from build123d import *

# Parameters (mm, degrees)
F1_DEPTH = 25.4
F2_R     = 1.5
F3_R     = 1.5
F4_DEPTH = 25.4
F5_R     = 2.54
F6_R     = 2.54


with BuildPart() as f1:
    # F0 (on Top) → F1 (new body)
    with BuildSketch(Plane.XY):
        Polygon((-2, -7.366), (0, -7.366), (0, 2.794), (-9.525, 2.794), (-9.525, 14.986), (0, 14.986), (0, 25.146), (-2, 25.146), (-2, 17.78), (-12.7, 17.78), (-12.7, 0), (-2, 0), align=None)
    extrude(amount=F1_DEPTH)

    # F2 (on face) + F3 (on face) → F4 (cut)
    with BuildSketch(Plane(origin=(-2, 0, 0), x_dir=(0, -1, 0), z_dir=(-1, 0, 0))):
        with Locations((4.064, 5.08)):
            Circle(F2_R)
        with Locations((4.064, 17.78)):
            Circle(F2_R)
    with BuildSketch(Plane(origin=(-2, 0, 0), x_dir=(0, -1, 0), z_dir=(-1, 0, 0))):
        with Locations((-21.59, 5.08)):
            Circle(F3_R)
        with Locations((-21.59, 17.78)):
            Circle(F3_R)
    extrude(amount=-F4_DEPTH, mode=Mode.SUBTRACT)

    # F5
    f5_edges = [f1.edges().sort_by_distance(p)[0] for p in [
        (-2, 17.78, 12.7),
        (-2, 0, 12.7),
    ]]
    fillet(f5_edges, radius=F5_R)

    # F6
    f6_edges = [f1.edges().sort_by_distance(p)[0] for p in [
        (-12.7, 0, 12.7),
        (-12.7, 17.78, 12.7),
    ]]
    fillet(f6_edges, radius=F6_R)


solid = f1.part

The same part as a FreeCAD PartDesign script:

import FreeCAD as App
import Part
import Sketcher

V = App.Vector
Q = App.Units.Quantity


def edges_at(feature, points):
    """Names of the edges that pass closest to the given points."""
    edges = feature.Shape.Edges
    near = lambda p: min(range(len(edges)), key=lambda i: edges[i].distToShape(Part.Vertex(*p))[0])
    return sorted({f"Edge{near(p) + 1}" for p in points})


def add_polygon(sketch, points):
    """Adds a closed chain of lines whose ends are joined by coincident constraints."""
    first, n = sketch.GeometryCount, len(points)
    for a, b in zip(points, points[1:] + points[:1]):
        sketch.addGeometry(Part.LineSegment(App.Vector(*a, 0), App.Vector(*b, 0)), False)
    for i in range(n):
        sketch.addConstraint(Sketcher.Constraint("Coincident", first + i, 2, first + (i + 1) % n, 1))

doc = App.newDocument("Part")
body = doc.addObject("PartDesign::Body", "Body")

sketch1 = body.newObject("Sketcher::SketchObject", "Sketch")
sketch1.AttachmentSupport = (doc.getObject("XY_Plane"), [""])
sketch1.MapMode = "FlatFace"
add_polygon(sketch1, [(-2, -7.4), (0, -7.4), (0, 2.8), (-9.5, 2.8), (-9.5, 15), (0, 15), (0, 25.1), (-2, 25.1), (-2, 17.8), (-12.7, 17.8), (-12.7, 0), (-2, 0)])
sketch1.addConstraint([
    Sketcher.Constraint("Horizontal", 0),
    Sketcher.Constraint("Vertical", 1),
    Sketcher.Constraint("Horizontal", 2),
    Sketcher.Constraint("Vertical", 3),
    Sketcher.Constraint("Horizontal", 4),
    Sketcher.Constraint("Vertical", 5),
    Sketcher.Constraint("Horizontal", 6),
    Sketcher.Constraint("Vertical", 7),
    Sketcher.Constraint("Horizontal", 8),
    Sketcher.Constraint("Vertical", 9),
    Sketcher.Constraint("Horizontal", 10),
    Sketcher.Constraint("Vertical", 11),
    Sketcher.Constraint("PointOnObject", 0, 2, -2),
    Sketcher.Constraint("PointOnObject", 4, 2, -2),
    Sketcher.Constraint("PointOnObject", 9, 2, -1),
    Sketcher.Constraint("Vertical", 7, 2, 10, 2),
    Sketcher.Constraint("Equal", 1, 5),
    Sketcher.Constraint("Equal", 7, 11),
    Sketcher.Constraint("DistanceY", 1, 1, 1, 2, Q("0.4 in")),
    Sketcher.Constraint("DistanceY", 9, 2, 9, 1, Q("0.7 in")),
    Sketcher.Constraint("DistanceY", 3, 1, 3, 2, Q("0.48 in")),
    Sketcher.Constraint("DistanceX", 8, 2, -1, 1, Q("0.5 in")),
    Sketcher.Constraint("DistanceX", 2, 2, 2, 1, Q("0.375 in")),
    Sketcher.Constraint("DistanceX", 0, 1, 0, 2, 2.0),
])
pad1 = body.newObject("PartDesign::Pad", "Pad")
pad1.Profile = sketch1
pad1.Length = Q("1 in")

sketch2 = body.newObject("Sketcher::SketchObject", "Sketch001")
sketch2.AttachmentSupport = (doc.getObject("YZ_Plane"), [""])
sketch2.MapMode = "FlatFace"
sketch2.AttachmentOffset = App.Placement(V(0, 0, -2), App.Rotation())
sketch2.addGeometry([
    Part.Circle(V(-4.1, 5.1, 0), V(0, 0, 1), 1.5),
    Part.Circle(V(-4.1, 17.8, 0), V(0, 0, 1), 1.5),
    Part.Circle(V(21.6, 5.1, 0), V(0, 0, 1), 1.5),
    Part.Circle(V(21.6, 17.8, 0), V(0, 0, 1), 1.5),
], False)
sketch2.addConstraint([
    Sketcher.Constraint("Equal", 0, 1),
    Sketcher.Constraint("Equal", 1, 2),
    Sketcher.Constraint("Equal", 2, 3),
    Sketcher.Constraint("Horizontal", 0, 3, 2, 3),
    Sketcher.Constraint("Horizontal", 1, 3, 3, 3),
    Sketcher.Constraint("Vertical", 0, 3, 1, 3),
    Sketcher.Constraint("Vertical", 2, 3, 3, 3),
    Sketcher.Constraint("DistanceY", -1, 1, 0, 3, Q("0.2 in")),
    Sketcher.Constraint("DistanceY", -1, 1, 1, 3, Q("0.7 in")),
    Sketcher.Constraint("Diameter", 0, 3.0),
    Sketcher.Constraint("DistanceX", 0, 3, -1, 1, Q("0.16 in")),
    Sketcher.Constraint("DistanceX", -1, 1, 2, 3, Q("0.85 in")),
])
pocket1 = body.newObject("PartDesign::Pocket", "Pocket")
pocket1.Profile = sketch2
pocket1.Length = Q("1 in")
pocket1.Reversed = True
doc.recompute()

fillet = body.newObject("PartDesign::Fillet", "Fillet")
fillet.Base = (pocket1, edges_at(pocket1, [(-2, 17.78, 12.7), (-2, 0, 12.7)]))
fillet.Radius = Q("0.1 in")
doc.recompute()

fillet2 = body.newObject("PartDesign::Fillet", "Fillet001")
fillet2.Base = (fillet, edges_at(fillet, [(-12.7, 0, 12.7), (-12.7, 17.78, 12.7)]))
fillet2.Radius = Q("0.1 in")

doc.recompute()
